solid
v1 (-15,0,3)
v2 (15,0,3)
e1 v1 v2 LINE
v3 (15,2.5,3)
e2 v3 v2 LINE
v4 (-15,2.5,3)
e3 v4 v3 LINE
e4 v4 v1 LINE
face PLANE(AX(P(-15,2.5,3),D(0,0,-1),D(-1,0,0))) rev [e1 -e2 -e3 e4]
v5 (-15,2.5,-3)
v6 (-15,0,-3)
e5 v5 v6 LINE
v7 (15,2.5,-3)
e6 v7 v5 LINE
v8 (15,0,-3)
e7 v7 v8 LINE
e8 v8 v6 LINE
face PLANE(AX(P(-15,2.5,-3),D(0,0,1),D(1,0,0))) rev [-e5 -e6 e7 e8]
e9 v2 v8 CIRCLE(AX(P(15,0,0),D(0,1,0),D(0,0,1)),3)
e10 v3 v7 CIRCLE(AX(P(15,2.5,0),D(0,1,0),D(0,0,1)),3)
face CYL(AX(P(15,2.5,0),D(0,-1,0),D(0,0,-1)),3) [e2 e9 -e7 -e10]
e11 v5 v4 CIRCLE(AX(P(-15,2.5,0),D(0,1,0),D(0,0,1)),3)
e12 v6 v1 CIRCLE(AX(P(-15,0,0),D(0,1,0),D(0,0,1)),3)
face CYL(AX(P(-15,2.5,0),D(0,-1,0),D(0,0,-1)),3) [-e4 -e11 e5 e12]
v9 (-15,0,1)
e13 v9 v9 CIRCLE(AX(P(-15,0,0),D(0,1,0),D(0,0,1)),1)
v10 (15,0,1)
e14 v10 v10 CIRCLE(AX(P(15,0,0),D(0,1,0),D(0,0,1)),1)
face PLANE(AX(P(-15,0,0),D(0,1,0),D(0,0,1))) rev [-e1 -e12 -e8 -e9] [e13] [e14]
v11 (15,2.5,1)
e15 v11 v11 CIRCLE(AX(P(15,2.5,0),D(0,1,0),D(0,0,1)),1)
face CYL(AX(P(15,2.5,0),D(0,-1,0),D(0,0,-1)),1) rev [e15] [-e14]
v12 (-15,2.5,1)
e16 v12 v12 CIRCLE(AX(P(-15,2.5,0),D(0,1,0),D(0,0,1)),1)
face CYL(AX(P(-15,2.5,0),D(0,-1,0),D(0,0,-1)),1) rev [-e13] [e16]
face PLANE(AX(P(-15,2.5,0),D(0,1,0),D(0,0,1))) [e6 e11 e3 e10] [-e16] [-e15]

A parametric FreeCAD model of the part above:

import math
import FreeCAD as App
import Part
import Sketcher

V = App.Vector
Q = App.Units.Quantity

doc = App.newDocument("Part")
body = doc.addObject("PartDesign::Body", "Body")

sketch1 = doc.addObject("Sketcher::SketchObject", "Sketch")
body.addObject(sketch1)
sketch1.AttachmentSupport = (doc.XZ_Plane, [""])
sketch1.MapMode = "FlatFace"
sketch1.addGeometry([
    Part.LineSegment(V(15, -3, 0), V(-15, -3, 0)),
    Part.ArcOfCircle(Part.Circle(V(-15, 0, 0), V(0, 0, 1), 3), math.radians(90), math.radians(270)),
    Part.LineSegment(V(-15, 3, 0), V(15, 3, 0)),
    Part.ArcOfCircle(Part.Circle(V(15, 0, 0), V(0, 0, 1), 3), math.radians(-90), math.radians(90)),
    Part.Circle(V(15, 0, 0), V(0, 0, 1), 1),
    Part.Circle(V(-15, 0, 0), V(0, 0, 1), 1),
], False)
sketch1.addConstraint([
    Sketcher.Constraint("Tangent", 0, 2, 1, 2),
    Sketcher.Constraint("Tangent", 1, 1, 2, 1),
    Sketcher.Constraint("Tangent", 2, 2, 3, 2),
    Sketcher.Constraint("Tangent", 3, 1, 0, 1),
    Sketcher.Constraint("Horizontal", 0),
    Sketcher.Constraint("Horizontal", 2),
    Sketcher.Constraint("Coincident", 4, 3, 3, 3),
    Sketcher.Constraint("Coincident", 5, 3, 1, 3),
    Sketcher.Constraint("Equal", 4, 5),
    Sketcher.Constraint("Symmetric", 1, 3, 3, 3, -1, 1),
    Sketcher.Constraint("Diameter", 4, Q("2 mm")),
    Sketcher.Constraint("Radius", 1, Q("3 mm")),
    Sketcher.Constraint("DistanceX", 0, 2, 0, 1, Q("30 mm")),
])
pad1 = doc.addObject("PartDesign::Pad", "Pad")
body.addObject(pad1)
pad1.Profile = sketch1
pad1.Length = 2.5
pad1.Reversed = True

doc.recompute()
